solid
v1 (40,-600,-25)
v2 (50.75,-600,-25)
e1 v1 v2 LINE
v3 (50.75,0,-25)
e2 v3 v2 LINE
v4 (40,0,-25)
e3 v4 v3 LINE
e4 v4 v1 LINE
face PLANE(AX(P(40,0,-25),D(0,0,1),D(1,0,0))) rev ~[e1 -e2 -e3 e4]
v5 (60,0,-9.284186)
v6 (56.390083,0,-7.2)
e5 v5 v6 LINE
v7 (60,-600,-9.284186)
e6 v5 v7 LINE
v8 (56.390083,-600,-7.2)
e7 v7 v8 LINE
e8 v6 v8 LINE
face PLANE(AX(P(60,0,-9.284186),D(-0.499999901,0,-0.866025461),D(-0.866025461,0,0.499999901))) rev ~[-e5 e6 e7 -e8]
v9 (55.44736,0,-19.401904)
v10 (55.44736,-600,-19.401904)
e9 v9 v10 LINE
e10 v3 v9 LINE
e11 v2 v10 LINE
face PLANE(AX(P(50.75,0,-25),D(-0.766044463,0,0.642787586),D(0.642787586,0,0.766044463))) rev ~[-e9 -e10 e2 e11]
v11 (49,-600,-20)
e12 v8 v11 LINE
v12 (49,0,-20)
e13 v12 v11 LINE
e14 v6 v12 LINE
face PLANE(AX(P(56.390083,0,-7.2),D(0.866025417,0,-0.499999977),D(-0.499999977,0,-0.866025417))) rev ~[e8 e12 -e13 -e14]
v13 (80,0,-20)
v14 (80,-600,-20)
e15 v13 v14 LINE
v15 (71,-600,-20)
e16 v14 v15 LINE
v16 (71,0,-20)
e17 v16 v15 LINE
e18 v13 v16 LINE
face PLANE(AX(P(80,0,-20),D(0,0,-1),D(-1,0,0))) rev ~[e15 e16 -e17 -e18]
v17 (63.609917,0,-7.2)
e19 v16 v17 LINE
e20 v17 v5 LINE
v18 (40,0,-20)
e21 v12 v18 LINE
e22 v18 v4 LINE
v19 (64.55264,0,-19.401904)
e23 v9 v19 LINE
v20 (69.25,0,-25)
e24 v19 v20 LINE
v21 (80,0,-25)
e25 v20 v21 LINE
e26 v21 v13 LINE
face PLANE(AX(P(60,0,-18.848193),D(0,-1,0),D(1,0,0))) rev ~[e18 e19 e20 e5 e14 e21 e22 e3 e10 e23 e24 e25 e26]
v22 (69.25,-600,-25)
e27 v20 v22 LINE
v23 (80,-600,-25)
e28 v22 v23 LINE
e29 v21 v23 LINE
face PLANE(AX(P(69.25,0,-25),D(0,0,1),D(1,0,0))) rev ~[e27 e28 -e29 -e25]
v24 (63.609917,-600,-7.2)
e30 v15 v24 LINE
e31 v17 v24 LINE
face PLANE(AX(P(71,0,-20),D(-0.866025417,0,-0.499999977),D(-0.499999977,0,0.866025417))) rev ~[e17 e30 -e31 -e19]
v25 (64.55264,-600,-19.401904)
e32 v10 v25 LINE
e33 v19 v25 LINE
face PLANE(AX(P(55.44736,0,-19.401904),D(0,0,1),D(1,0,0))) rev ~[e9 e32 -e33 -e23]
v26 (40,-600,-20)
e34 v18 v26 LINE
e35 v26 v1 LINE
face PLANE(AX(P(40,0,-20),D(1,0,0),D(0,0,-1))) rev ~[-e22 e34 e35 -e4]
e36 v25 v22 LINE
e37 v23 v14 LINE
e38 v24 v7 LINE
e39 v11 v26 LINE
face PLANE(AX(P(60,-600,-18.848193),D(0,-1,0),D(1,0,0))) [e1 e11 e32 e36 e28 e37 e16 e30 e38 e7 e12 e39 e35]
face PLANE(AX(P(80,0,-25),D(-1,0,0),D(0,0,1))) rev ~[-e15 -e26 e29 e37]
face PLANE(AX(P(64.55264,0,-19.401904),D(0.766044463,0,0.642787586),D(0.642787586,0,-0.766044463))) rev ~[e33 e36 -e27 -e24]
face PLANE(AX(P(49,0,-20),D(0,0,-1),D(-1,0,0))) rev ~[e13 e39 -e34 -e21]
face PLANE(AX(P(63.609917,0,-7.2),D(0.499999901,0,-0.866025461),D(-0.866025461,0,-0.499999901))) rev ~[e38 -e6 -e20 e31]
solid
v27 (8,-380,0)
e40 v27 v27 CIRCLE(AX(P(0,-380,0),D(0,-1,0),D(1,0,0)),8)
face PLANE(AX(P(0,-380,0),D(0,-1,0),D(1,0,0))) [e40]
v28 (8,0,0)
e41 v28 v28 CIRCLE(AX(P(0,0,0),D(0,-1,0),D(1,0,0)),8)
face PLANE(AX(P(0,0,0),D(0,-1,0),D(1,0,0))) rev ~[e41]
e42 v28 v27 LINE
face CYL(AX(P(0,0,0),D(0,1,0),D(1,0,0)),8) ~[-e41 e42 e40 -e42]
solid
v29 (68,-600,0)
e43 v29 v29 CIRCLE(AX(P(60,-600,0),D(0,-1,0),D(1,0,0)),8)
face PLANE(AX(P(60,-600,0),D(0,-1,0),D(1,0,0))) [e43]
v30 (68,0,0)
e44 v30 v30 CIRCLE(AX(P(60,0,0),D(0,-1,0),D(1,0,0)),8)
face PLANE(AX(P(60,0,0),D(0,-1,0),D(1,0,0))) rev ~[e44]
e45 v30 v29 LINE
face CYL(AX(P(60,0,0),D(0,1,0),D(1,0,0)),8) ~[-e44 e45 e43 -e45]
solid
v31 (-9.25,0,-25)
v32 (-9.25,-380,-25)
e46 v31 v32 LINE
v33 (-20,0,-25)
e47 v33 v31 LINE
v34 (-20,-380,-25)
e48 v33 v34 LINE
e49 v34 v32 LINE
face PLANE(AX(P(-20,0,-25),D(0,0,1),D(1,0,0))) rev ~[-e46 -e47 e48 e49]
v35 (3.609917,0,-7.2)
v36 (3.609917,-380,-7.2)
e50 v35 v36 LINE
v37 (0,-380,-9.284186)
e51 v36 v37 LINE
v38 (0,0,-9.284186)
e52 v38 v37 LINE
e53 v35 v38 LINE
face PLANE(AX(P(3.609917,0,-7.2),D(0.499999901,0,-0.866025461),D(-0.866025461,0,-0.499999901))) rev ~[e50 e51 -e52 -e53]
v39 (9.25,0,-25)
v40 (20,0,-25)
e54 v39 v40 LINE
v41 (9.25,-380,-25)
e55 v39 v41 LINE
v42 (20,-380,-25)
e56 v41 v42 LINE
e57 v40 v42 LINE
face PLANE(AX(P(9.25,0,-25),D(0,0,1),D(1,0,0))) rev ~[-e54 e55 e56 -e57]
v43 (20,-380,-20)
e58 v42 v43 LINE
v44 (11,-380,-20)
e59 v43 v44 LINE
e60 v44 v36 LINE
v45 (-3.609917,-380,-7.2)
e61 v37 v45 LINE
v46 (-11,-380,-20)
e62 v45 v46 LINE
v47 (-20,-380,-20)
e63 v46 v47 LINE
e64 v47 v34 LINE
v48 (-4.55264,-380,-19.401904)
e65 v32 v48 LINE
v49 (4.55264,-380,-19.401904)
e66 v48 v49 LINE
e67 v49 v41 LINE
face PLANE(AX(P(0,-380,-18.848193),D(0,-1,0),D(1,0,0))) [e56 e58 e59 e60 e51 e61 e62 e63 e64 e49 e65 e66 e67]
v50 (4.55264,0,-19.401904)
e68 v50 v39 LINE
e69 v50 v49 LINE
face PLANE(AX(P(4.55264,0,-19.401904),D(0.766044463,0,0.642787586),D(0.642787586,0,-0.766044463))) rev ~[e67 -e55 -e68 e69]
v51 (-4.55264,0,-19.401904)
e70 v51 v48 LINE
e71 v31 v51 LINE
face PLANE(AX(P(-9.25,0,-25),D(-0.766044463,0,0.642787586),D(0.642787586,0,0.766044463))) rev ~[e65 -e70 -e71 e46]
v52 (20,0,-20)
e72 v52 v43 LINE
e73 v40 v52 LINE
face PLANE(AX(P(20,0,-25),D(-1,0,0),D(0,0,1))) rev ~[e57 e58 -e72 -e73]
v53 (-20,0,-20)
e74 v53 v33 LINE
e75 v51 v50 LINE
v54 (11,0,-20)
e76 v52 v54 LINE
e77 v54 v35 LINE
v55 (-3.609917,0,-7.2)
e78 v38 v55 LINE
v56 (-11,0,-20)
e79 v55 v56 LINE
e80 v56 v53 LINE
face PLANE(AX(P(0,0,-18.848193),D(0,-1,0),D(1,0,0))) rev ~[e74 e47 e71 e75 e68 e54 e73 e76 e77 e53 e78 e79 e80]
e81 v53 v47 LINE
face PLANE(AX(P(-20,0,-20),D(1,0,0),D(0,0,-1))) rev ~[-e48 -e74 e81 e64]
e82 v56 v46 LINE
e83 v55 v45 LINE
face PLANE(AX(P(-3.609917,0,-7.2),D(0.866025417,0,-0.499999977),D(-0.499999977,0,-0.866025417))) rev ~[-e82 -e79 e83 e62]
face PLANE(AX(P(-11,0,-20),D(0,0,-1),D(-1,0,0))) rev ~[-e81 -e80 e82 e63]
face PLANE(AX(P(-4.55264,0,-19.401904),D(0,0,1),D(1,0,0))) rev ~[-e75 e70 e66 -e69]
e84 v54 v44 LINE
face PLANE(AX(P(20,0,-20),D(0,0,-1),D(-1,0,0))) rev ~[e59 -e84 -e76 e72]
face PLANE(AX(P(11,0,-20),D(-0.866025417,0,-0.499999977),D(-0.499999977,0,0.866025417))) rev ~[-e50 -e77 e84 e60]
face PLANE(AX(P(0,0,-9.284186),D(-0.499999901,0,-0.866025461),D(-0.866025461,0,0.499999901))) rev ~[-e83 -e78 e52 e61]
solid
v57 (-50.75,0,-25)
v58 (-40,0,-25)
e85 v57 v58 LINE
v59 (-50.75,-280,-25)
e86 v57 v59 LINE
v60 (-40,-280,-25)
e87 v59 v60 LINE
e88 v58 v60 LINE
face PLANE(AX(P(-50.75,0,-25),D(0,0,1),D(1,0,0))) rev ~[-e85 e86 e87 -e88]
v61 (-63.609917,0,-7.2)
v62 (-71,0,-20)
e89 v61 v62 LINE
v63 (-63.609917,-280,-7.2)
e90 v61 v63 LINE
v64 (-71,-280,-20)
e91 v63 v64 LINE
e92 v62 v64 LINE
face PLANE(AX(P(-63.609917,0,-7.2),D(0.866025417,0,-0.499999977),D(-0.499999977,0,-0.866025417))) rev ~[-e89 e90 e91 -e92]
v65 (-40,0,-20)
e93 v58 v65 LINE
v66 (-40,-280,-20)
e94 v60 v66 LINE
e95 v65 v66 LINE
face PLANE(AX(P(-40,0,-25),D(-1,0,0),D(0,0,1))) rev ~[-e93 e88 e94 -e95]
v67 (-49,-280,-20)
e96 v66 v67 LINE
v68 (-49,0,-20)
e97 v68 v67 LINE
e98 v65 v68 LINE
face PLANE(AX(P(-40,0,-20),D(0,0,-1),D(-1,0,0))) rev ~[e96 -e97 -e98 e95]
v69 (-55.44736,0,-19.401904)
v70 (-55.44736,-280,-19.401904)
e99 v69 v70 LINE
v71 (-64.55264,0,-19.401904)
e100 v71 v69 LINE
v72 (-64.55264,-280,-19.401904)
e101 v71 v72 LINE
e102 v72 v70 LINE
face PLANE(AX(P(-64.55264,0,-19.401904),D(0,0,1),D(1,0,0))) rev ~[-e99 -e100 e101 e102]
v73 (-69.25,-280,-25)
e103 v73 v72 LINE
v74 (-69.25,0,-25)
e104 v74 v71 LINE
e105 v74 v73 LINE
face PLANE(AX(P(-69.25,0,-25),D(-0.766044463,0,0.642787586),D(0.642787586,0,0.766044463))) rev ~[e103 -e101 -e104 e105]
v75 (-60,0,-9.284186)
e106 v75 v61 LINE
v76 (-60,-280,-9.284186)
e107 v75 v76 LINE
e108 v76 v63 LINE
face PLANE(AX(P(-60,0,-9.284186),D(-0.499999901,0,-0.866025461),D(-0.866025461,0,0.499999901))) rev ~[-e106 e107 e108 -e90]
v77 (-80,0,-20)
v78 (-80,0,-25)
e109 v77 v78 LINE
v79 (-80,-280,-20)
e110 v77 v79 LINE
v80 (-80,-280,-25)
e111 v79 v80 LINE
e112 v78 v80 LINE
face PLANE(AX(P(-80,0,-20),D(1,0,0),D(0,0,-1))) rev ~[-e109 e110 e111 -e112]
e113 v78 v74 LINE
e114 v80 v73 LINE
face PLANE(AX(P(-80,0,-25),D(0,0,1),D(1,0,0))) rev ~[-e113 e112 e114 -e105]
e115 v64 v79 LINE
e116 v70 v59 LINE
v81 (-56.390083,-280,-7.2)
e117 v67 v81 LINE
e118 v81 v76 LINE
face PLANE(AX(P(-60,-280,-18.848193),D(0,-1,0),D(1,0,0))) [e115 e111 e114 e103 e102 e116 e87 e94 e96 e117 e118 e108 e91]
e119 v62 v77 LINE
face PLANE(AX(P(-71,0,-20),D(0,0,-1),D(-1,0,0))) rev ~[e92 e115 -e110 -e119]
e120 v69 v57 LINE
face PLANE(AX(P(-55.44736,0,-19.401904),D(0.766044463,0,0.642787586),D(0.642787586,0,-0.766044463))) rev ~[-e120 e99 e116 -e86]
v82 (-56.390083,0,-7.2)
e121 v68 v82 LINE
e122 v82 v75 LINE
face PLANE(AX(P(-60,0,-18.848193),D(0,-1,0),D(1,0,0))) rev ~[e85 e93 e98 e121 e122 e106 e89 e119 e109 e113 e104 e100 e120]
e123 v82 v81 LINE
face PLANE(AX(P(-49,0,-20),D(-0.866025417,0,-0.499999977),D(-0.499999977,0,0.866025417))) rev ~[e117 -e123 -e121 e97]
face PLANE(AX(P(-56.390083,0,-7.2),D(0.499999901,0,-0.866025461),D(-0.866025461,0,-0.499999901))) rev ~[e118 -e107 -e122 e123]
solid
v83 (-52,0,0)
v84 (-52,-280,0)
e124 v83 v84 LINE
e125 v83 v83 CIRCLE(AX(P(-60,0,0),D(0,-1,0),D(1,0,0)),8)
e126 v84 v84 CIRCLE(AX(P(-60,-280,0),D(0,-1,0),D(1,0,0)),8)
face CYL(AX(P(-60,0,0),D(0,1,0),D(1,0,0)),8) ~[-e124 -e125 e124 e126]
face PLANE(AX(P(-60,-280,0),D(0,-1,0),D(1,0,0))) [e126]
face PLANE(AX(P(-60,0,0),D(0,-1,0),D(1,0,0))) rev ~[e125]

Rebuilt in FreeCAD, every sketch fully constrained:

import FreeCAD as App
import Part
import Sketcher

V = App.Vector
Q = App.Units.Quantity

doc = App.newDocument("Part")
body = doc.addObject("PartDesign::Body", "Body")
body.AllowCompound = True

sketch1 = body.newObject("Sketcher::SketchObject", "Sketch")
sketch1.AttachmentSupport = (doc.getObject("XZ_Plane"), [""])
sketch1.MapMode = "FlatFace"
sketch1.addGeometry(Part.Circle(V(0, 0, 0), V(0, 0, 1), 8), False)
sketch1.addGeometry(Part.LineSegment(V(9.2, -25, 0), V(20, -25, 0)), False)
sketch1.addGeometry(Part.LineSegment(V(20, -25, 0), V(20, -20, 0)), False)
sketch1.addGeometry(Part.LineSegment(V(20, -20, 0), V(11, -20, 0)), False)
sketch1.addGeometry(Part.LineSegment(V(11, -20, 0), V(3.6, -7.2, 0)), False)
sketch1.addGeometry(Part.LineSegment(V(3.6, -7.2, 0), V(0, -9.3, 0)), False)
sketch1.addGeometry(Part.LineSegment(V(0, -9.3, 0), V(-3.6, -7.2, 0)), False)
sketch1.addGeometry(Part.LineSegment(V(-3.6, -7.2, 0), V(-11, -20, 0)), False)
sketch1.addGeometry(Part.LineSegment(V(-11, -20, 0), V(-20, -20, 0)), False)
sketch1.addGeometry(Part.LineSegment(V(-20, -20, 0), V(-20, -25, 0)), False)
sketch1.addGeometry(Part.LineSegment(V(-20, -25, 0), V(-9.2, -25, 0)), False)
sketch1.addGeometry(Part.LineSegment(V(-9.2, -25, 0), V(-4.6, -19.4, 0)), False)
sketch1.addGeometry(Part.LineSegment(V(-4.6, -19.4, 0), V(4.6, -19.4, 0)), False)
sketch1.addGeometry(Part.LineSegment(V(4.6, -19.4, 0), V(9.2, -25, 0)), False)
sketch1.addConstraint(Sketcher.Constraint("Coincident", 1, 2, 2, 1))
sketch1.addConstraint(Sketcher.Constraint("Coincident", 2, 2, 3, 1))
sketch1.addConstraint(Sketcher.Constraint("Coincident", 3, 2, 4, 1))
sketch1.addConstraint(Sketcher.Constraint("Coincident", 4, 2, 5, 1))
sketch1.addConstraint(Sketcher.Constraint("Coincident", 5, 2, 6, 1))
sketch1.addConstraint(Sketcher.Constraint("Coincident", 6, 2, 7, 1))
sketch1.addConstraint(Sketcher.Constraint("Coincident", 7, 2, 8, 1))
sketch1.addConstraint(Sketcher.Constraint("Coincident", 8, 2, 9, 1))
sketch1.addConstraint(Sketcher.Constraint("Coincident", 9, 2, 10, 1))
sketch1.addConstraint(Sketcher.Constraint("Coincident", 10, 2, 11, 1))
sketch1.addConstraint(Sketcher.Constraint("Coincident", 11, 2, 12, 1))
sketch1.addConstraint(Sketcher.Constraint("Coincident", 12, 2, 13, 1))
sketch1.addConstraint(Sketcher.Constraint("Coincident", 13, 2, 1, 1))
sketch1.addConstraint(Sketcher.Constraint("Horizontal", 1))
sketch1.addConstraint(Sketcher.Constraint("Vertical", 2))
sketch1.addConstraint(Sketcher.Constraint("Horizontal", 3))
sketch1.addConstraint(Sketcher.Constraint("Horizontal", 8))
sketch1.addConstraint(Sketcher.Constraint("Vertical", 9))
sketch1.addConstraint(Sketcher.Constraint("Horizontal", 10))
sketch1.addConstraint(Sketcher.Constraint("Horizontal", 12))
sketch1.addConstraint(Sketcher.Constraint("Coincident", 0, 3, -1, 1))
sketch1.addConstraint(Sketcher.Constraint("Symmetric", 4, 2, 6, 2, -2))
sketch1.addConstraint(Sketcher.Constraint("Symmetric", 3, 2, 7, 2, -2))
sketch1.addConstraint(Sketcher.Constraint("Symmetric", 1, 2, 9, 2, -2))
sketch1.addConstraint(Sketcher.Constraint("PointOnObject", 5, 2, -2))
sketch1.addConstraint(Sketcher.Constraint("Perpendicular", 4, 5))
sketch1.addConstraint(Sketcher.Constraint("Equal", 1, 10))
sketch1.addConstraint(Sketcher.Constraint("Equal", 11, 13))
sketch1.addConstraint(Sketcher.Constraint("Diameter", 0, 16.0))
sketch1.addConstraint(Sketcher.Constraint("DistanceX", 3, 2, 3, 1, 9.0))
sketch1.addConstraint(Sketcher.Constraint("DistanceY", 2, 1, 2, 2, 5.0))
sketch1.addConstraint(Sketcher.Constraint("Angle", 4, Q("119.999999 deg")))
sketch1.addConstraint(Sketcher.Constraint("Angle", 11, Q("50.000002 deg")))
sketch1.addConstraint(Sketcher.Constraint("DistanceX", -1, 1, 1, 2, 20.0))
sketch1.addConstraint(Sketcher.Constraint("DistanceY", 1, 2, -1, 1, 25.0))
sketch1.addConstraint(Sketcher.Constraint("DistanceX", 1, 1, 1, 2, 10.75))
sketch1.addConstraint(Sketcher.Constraint("DistanceY", 4, 2, -1, 1, 7.2))
sketch1.addConstraint(Sketcher.Constraint("DistanceX", 12, 1, 12, 2, 9.10528))
pad1 = body.newObject("PartDesign::Pad", "Pad")
pad1.Profile = sketch1
pad1.Length = 380
body2 = doc.addObject("PartDesign::Body", "Body001")
body2.AllowCompound = True

sketch2 = body2.newObject("Sketcher::SketchObject", "Sketch001")
sketch2.AttachmentSupport = (doc.getObject("XZ_Plane001"), [""])
sketch2.MapMode = "FlatFace"
sketch2.addGeometry(Part.Circle(V(60, 0, 0), V(0, 0, 1), 8), False)
sketch2.addGeometry(Part.LineSegment(V(69.2, -25, 0), V(80, -25, 0)), False)
sketch2.addGeometry(Part.LineSegment(V(80, -25, 0), V(80, -20, 0)), False)
sketch2.addGeometry(Part.LineSegment(V(80, -20, 0), V(71, -20, 0)), False)
sketch2.addGeometry(Part.LineSegment(V(71, -20, 0), V(63.6, -7.2, 0)), False)
sketch2.addGeometry(Part.LineSegment(V(63.6, -7.2, 0), V(60, -9.3, 0)), False)
sketch2.addGeometry(Part.LineSegment(V(60, -9.3, 0), V(56.4, -7.2, 0)), False)
sketch2.addGeometry(Part.LineSegment(V(56.4, -7.2, 0), V(49, -20, 0)), False)
sketch2.addGeometry(Part.LineSegment(V(49, -20, 0), V(40, -20, 0)), False)
sketch2.addGeometry(Part.LineSegment(V(40, -20, 0), V(40, -25, 0)), False)
sketch2.addGeometry(Part.LineSegment(V(40, -25, 0), V(50.8, -25, 0)), False)
sketch2.addGeometry(Part.LineSegment(V(50.8, -25, 0), V(55.4, -19.4, 0)), False)
sketch2.addGeometry(Part.LineSegment(V(55.4, -19.4, 0), V(64.6, -19.4, 0)), False)
sketch2.addGeometry(Part.LineSegment(V(64.6, -19.4, 0), V(69.2, -25, 0)), False)
sketch2.addConstraint(Sketcher.Constraint("Coincident", 1, 2, 2, 1))
sketch2.addConstraint(Sketcher.Constraint("Coincident", 2, 2, 3, 1))
sketch2.addConstraint(Sketcher.Constraint("Coincident", 3, 2, 4, 1))
sketch2.addConstraint(Sketcher.Constraint("Coincident", 4, 2, 5, 1))
sketch2.addConstraint(Sketcher.Constraint("Coincident", 5, 2, 6, 1))
sketch2.addConstraint(Sketcher.Constraint("Coincident", 6, 2, 7, 1))
sketch2.addConstraint(Sketcher.Constraint("Coincident", 7, 2, 8, 1))
sketch2.addConstraint(Sketcher.Constraint("Coincident", 8, 2, 9, 1))
sketch2.addConstraint(Sketcher.Constraint("Coincident", 9, 2, 10, 1))
sketch2.addConstraint(Sketcher.Constraint("Coincident", 10, 2, 11, 1))
sketch2.addConstraint(Sketcher.Constraint("Coincident", 11, 2, 12, 1))
sketch2.addConstraint(Sketcher.Constraint("Coincident", 12, 2, 13, 1))
sketch2.addConstraint(Sketcher.Constraint("Coincident", 13, 2, 1, 1))
sketch2.addConstraint(Sketcher.Constraint("Horizontal", 1))
sketch2.addConstraint(Sketcher.Constraint("Vertical", 2))
sketch2.addConstraint(Sketcher.Constraint("Horizontal", 3))
sketch2.addConstraint(Sketcher.Constraint("Horizontal", 8))
sketch2.addConstraint(Sketcher.Constraint("Vertical", 9))
sketch2.addConstraint(Sketcher.Constraint("Horizontal", 10))
sketch2.addConstraint(Sketcher.Constraint("Horizontal", 12))
sketch2.addConstraint(Sketcher.Constraint("PointOnObject", 0, 3, -1))
sketch2.addConstraint(Sketcher.Constraint("Perpendicular", 4, 5))
sketch2.addConstraint(Sketcher.Constraint("Perpendicular", 6, 7))
sketch2.addConstraint(Sketcher.Constraint("Horizontal", 4, 2, 6, 2))
sketch2.addConstraint(Sketcher.Constraint("Horizontal", 3, 2, 7, 2))
sketch2.addConstraint(Sketcher.Constraint("Horizontal", 1, 2, 9, 2))
sketch2.addConstraint(Sketcher.Constraint("Vertical", 0, 3, 5, 2))
sketch2.addConstraint(Sketcher.Constraint("Equal", 3, 8))
sketch2.addConstraint(Sketcher.Constraint("Equal", 1, 10))
sketch2.addConstraint(Sketcher.Constraint("Equal", 5, 6))
sketch2.addConstraint(Sketcher.Constraint("Equal", 11, 13))
sketch2.addConstraint(Sketcher.Constraint("Diameter", 0, 16.0))
sketch2.addConstraint(Sketcher.Constraint("DistanceX", 3, 2, 3, 1, 9.0))
sketch2.addConstraint(Sketcher.Constraint("DistanceY", 2, 1, 2, 2, 5.0))
sketch2.addConstraint(Sketcher.Constraint("Angle", 4, Q("119.999999 deg")))
sketch2.addConstraint(Sketcher.Constraint("Angle", 11, Q("50.000002 deg")))
sketch2.addConstraint(Sketcher.Constraint("DistanceX", -1, 1, 0, 3, 60.0))
sketch2.addConstraint(Sketcher.Constraint("DistanceX", -1, 1, 1, 2, 80.0))
sketch2.addConstraint(Sketcher.Constraint("DistanceY", 1, 2, -1, 1, 25.0))
sketch2.addConstraint(Sketcher.Constraint("DistanceX", 1, 1, 1, 2, 10.75))
sketch2.addConstraint(Sketcher.Constraint("DistanceY", 4, 2, -1, 1, 7.2))
sketch2.addConstraint(Sketcher.Constraint("DistanceX", 12, 1, 12, 2, 9.10528))
pad2 = body2.newObject("PartDesign::Pad", "Pad001")
pad2.Profile = sketch2
pad2.Length = 600
body3 = doc.addObject("PartDesign::Body", "Body002")
body3.AllowCompound = True

sketch3 = body3.newObject("Sketcher::SketchObject", "Sketch002")
sketch3.AttachmentSupport = (doc.getObject("XZ_Plane002"), [""])
sketch3.MapMode = "FlatFace"
sketch3.addGeometry(Part.Circle(V(-60, 0, 0), V(0, 0, 1), 8), False)
sketch3.addGeometry(Part.LineSegment(V(-50.8, -25, 0), V(-40, -25, 0)), False)
sketch3.addGeometry(Part.LineSegment(V(-40, -25, 0), V(-40, -20, 0)), False)
sketch3.addGeometry(Part.LineSegment(V(-40, -20, 0), V(-49, -20, 0)), False)
sketch3.addGeometry(Part.LineSegment(V(-49, -20, 0), V(-56.4, -7.2, 0)), False)
sketch3.addGeometry(Part.LineSegment(V(-56.4, -7.2, 0), V(-60, -9.3, 0)), False)
sketch3.addGeometry(Part.LineSegment(V(-60, -9.3, 0), V(-63.6, -7.2, 0)), False)
sketch3.addGeometry(Part.LineSegment(V(-63.6, -7.2, 0), V(-71, -20, 0)), False)
sketch3.addGeometry(Part.LineSegment(V(-71, -20, 0), V(-80, -20, 0)), False)
sketch3.addGeometry(Part.LineSegment(V(-80, -20, 0), V(-80, -25, 0)), False)
sketch3.addGeometry(Part.LineSegment(V(-80, -25, 0), V(-69.2, -25, 0)), False)
sketch3.addGeometry(Part.LineSegment(V(-69.2, -25, 0), V(-64.6, -19.4, 0)), False)
sketch3.addGeometry(Part.LineSegment(V(-64.6, -19.4, 0), V(-55.4, -19.4, 0)), False)
sketch3.addGeometry(Part.LineSegment(V(-55.4, -19.4, 0), V(-50.8, -25, 0)), False)
sketch3.addConstraint(Sketcher.Constraint("Coincident", 1, 2, 2, 1))
sketch3.addConstraint(Sketcher.Constraint("Coincident", 2, 2, 3, 1))
sketch3.addConstraint(Sketcher.Constraint("Coincident", 3, 2, 4, 1))
sketch3.addConstraint(Sketcher.Constraint("Coincident", 4, 2, 5, 1))
sketch3.addConstraint(Sketcher.Constraint("Coincident", 5, 2, 6, 1))
sketch3.addConstraint(Sketcher.Constraint("Coincident", 6, 2, 7, 1))
sketch3.addConstraint(Sketcher.Constraint("Coincident", 7, 2, 8, 1))
sketch3.addConstraint(Sketcher.Constraint("Coincident", 8, 2, 9, 1))
sketch3.addConstraint(Sketcher.Constraint("Coincident", 9, 2, 10, 1))
sketch3.addConstraint(Sketcher.Constraint("Coincident", 10, 2, 11, 1))
sketch3.addConstraint(Sketcher.Constraint("Coincident", 11, 2, 12, 1))
sketch3.addConstraint(Sketcher.Constraint("Coincident", 12, 2, 13, 1))
sketch3.addConstraint(Sketcher.Constraint("Coincident", 13, 2, 1, 1))
sketch3.addConstraint(Sketcher.Constraint("Horizontal", 1))
sketch3.addConstraint(Sketcher.Constraint("Vertical", 2))
sketch3.addConstraint(Sketcher.Constraint("Horizontal", 3))
sketch3.addConstraint(Sketcher.Constraint("Horizontal", 8))
sketch3.addConstraint(Sketcher.Constraint("Vertical", 9))
sketch3.addConstraint(Sketcher.Constraint("Horizontal", 10))
sketch3.addConstraint(Sketcher.Constraint("Horizontal", 12))
sketch3.addConstraint(Sketcher.Constraint("PointOnObject", 0, 3, -1))
sketch3.addConstraint(Sketcher.Constraint("Perpendicular", 4, 5))
sketch3.addConstraint(Sketcher.Constraint("Perpendicular", 6, 7))
sketch3.addConstraint(Sketcher.Constraint("Horizontal", 4, 2, 6, 2))
sketch3.addConstraint(Sketcher.Constraint("Horizontal", 3, 2, 7, 2))
sketch3.addConstraint(Sketcher.Constraint("Horizontal", 1, 2, 9, 2))
sketch3.addConstraint(Sketcher.Constraint("Vertical", 0, 3, 5, 2))
sketch3.addConstraint(Sketcher.Constraint("Equal", 3, 8))
sketch3.addConstraint(Sketcher.Constraint("Equal", 1, 10))
sketch3.addConstraint(Sketcher.Constraint("Equal", 5, 6))
sketch3.addConstraint(Sketcher.Constraint("Equal", 11, 13))
sketch3.addConstraint(Sketcher.Constraint("Diameter", 0, 16.0))
sketch3.addConstraint(Sketcher.Constraint("DistanceX", 3, 2, 3, 1, 9.0))
sketch3.addConstraint(Sketcher.Constraint("DistanceY", 2, 1, 2, 2, 5.0))
sketch3.addConstraint(Sketcher.Constraint("Angle", 4, Q("119.999999 deg")))
sketch3.addConstraint(Sketcher.Constraint("Angle", 11, Q("50.000002 deg")))
sketch3.addConstraint(Sketcher.Constraint("DistanceX", 0, 3, -1, 1, 60.0))
sketch3.addConstraint(Sketcher.Constraint("DistanceX", 1, 2, -1, 1, 40.0))
sketch3.addConstraint(Sketcher.Constraint("DistanceY", 1, 2, -1, 1, 25.0))
sketch3.addConstraint(Sketcher.Constraint("DistanceX", 1, 1, 1, 2, 10.75))
sketch3.addConstraint(Sketcher.Constraint("DistanceY", 4, 2, -1, 1, 7.2))
sketch3.addConstraint(Sketcher.Constraint("DistanceX", 12, 1, 12, 2, 9.10528))
pad3 = body3.newObject("PartDesign::Pad", "Pad002")
pad3.Profile = sketch3
pad3.Length = 280

doc.recompute()
